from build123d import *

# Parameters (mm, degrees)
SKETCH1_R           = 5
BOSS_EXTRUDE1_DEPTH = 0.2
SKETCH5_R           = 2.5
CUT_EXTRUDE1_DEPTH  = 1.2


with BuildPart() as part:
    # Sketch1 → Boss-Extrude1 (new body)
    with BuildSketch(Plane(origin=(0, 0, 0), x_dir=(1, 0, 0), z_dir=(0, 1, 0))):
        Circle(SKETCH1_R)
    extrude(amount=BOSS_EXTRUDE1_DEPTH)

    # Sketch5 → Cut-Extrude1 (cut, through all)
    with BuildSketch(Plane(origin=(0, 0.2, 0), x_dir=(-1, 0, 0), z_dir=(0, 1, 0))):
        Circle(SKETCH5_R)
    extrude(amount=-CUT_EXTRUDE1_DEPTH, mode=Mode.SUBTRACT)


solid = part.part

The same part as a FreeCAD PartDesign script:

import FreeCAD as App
import Part
import Sketcher

V = App.Vector

doc = App.newDocument("Part")
body = doc.addObject("PartDesign::Body", "Body")

# Sketch on XZ plane
sketch1 = doc.addObject("Sketcher::SketchObject", "Sketch")
body.addObject(sketch1)
sketch1.AttachmentSupport = (doc.XZ_Plane, [""])
sketch1.MapMode = "FlatFace"
sketch1.addGeometry(Part.Circle(V(0, 0, 0), V(0, 0, 1), 5), False)
sketch1.addConstraint(Sketcher.Constraint("Coincident", 0, 3, -1, 1))
sketch1.addConstraint(Sketcher.Constraint("Diameter", 0, 10.0))
pad1 = doc.addObject("PartDesign::Pad", "Pad")
body.addObject(pad1)
pad1.Profile = sketch1
pad1.Length = 0.2
pad1.Reversed = True

# Sketch on XZ plane
sketch2 = doc.addObject("Sketcher::SketchObject", "Sketch001")
body.addObject(sketch2)
sketch2.AttachmentSupport = (doc.XZ_Plane, [""])
sketch2.MapMode = "FlatFace"
sketch2.AttachmentOffset = App.Placement(V(0, 0, -0.2), App.Rotation())
sketch2.addGeometry(Part.Circle(V(0, 0, 0), V(0, 0, 1), 2.5), False)
sketch2.addConstraint(Sketcher.Constraint("Coincident", 0, 3, -1, 1))
sketch2.addConstraint(Sketcher.Constraint("Diameter", 0, 5.0))
pocket1 = doc.addObject("PartDesign::Pocket", "Pocket")
body.addObject(pocket1)
pocket1.Profile = sketch2
pocket1.Type = "ThroughAll"
pocket1.Reversed = True

doc.recompute()
